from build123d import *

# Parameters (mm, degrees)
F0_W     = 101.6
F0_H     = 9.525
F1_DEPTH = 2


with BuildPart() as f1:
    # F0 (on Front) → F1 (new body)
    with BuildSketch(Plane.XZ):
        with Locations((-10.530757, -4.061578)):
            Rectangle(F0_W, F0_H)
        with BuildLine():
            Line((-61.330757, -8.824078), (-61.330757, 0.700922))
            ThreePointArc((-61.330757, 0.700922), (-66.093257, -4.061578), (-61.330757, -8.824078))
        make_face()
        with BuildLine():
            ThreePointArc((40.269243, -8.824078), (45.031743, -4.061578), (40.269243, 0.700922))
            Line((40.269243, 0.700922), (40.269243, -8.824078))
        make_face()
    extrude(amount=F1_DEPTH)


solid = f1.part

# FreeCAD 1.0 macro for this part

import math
import FreeCAD as App
import Part
import Sketcher

V = App.Vector
Q = App.Units.Quantity

doc = App.newDocument("Part")
body = doc.addObject("PartDesign::Body", "Body")

# Sketch on XZ plane
sketch1 = body.newObject("Sketcher::SketchObject", "Sketch")
sketch1.AttachmentSupport = (doc.getObject("XZ_Plane"), [""])
sketch1.MapMode = "FlatFace"
sketch1.addGeometry([
    Part.LineSegment(V(-61.3, -8.8, 0), V(40.3, -8.8, 0)),
    Part.ArcOfCircle(Part.Circle(V(40.3, -4.1, 0), V(0, 0, 1), 4.8), math.radians(-90), math.radians(90)),
    Part.LineSegment(V(40.3, 0.7, 0), V(-61.3, 0.7, 0)),
    Part.ArcOfCircle(Part.Circle(V(-61.3, -4.1, 0), V(0, 0, 1), 4.8), math.radians(90), math.radians(270)),
], False)
sketch1.addConstraint([
    Sketcher.Constraint("Tangent", 0, 2, 1, 1),
    Sketcher.Constraint("Tangent", 1, 2, 2, 1),
    Sketcher.Constraint("Tangent", 2, 2, 3, 1),
    Sketcher.Constraint("Tangent", 3, 2, 0, 1),
    Sketcher.Constraint("Horizontal", 0),
    Sketcher.Constraint("Horizontal", 2),
    Sketcher.Constraint("DistanceX", 0, 1, 0, 2, Q("4 in")),
    Sketcher.Constraint("Radius", 1, Q("0.1875 in")),
    Sketcher.Constraint("DistanceX", -1, 1, 1, 3, Q("40.269243 mm")),
    Sketcher.Constraint("DistanceY", 1, 3, -1, 1, Q("4.061578 mm")),
])
pad1 = body.newObject("PartDesign::Pad", "Pad")
pad1.Profile = sketch1
pad1.Length = 2

doc.recompute()
